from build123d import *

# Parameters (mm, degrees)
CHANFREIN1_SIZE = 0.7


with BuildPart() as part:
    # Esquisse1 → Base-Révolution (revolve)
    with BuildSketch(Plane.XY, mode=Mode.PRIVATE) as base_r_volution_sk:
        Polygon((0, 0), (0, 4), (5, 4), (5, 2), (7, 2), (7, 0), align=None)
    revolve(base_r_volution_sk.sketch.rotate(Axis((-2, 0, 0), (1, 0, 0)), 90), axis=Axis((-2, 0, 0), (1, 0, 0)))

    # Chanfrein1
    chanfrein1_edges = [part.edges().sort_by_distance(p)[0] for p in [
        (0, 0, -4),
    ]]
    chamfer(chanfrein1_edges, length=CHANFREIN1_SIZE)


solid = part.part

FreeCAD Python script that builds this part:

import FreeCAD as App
import Part
import Sketcher

V = App.Vector
Q = App.Units.Quantity


def edges_at(feature, points):
    """Names of the edges that pass closest to the given points."""
    edges = feature.Shape.Edges
    near = lambda p: min(range(len(edges)), key=lambda i: edges[i].distToShape(Part.Vertex(*p))[0])
    return sorted({f"Edge{near(p) + 1}" for p in points})


def add_polygon(sketch, points):
    """Adds a closed chain of lines whose ends are joined by coincident constraints."""
    first, n = sketch.GeometryCount, len(points)
    for a, b in zip(points, points[1:] + points[:1]):
        sketch.addGeometry(Part.LineSegment(App.Vector(*a, 0), App.Vector(*b, 0)), False)
    for i in range(n):
        sketch.addConstraint(Sketcher.Constraint("Coincident", first + i, 2, first + (i + 1) % n, 1))

doc = App.newDocument("Part")
body = doc.addObject("PartDesign::Body", "Body")

sketch1 = body.newObject("Sketcher::SketchObject", "Sketch")
sketch1.AttachmentSupport = (doc.getObject("XY_Plane"), [""])
sketch1.MapMode = "FlatFace"
add_polygon(sketch1, [(0, 4), (0, 0), (7, 0), (7, 2), (5, 2), (5, 4)])
sketch1.addConstraint(Sketcher.Constraint("Vertical", 0))
sketch1.addConstraint(Sketcher.Constraint("Horizontal", 1))
sketch1.addConstraint(Sketcher.Constraint("Vertical", 2))
sketch1.addConstraint(Sketcher.Constraint("Horizontal", 3))
sketch1.addConstraint(Sketcher.Constraint("Vertical", 4))
sketch1.addConstraint(Sketcher.Constraint("Horizontal", 5))
sketch1.addConstraint(Sketcher.Constraint("Coincident", 0, 2, -1, 1))
sketch1.addConstraint(Sketcher.Constraint("Equal", 3, 2))
sketch1.addConstraint(Sketcher.Constraint("Equal", 2, 4))
sketch1.addConstraint(Sketcher.Constraint("DistanceX", 1, 1, 1, 2, Q("7 mm")))
sketch1.addConstraint(Sketcher.Constraint("DistanceX", 3, 2, 3, 1, Q("2 mm")))
revolution = body.newObject("PartDesign::Revolution", "Revolution")
revolution.Profile = sketch1
revolution.ReferenceAxis = (sketch1, ["H_Axis"])
revolution.Angle = 360
doc.recompute()

chamfer = body.newObject("PartDesign::Chamfer", "Chamfer")
chamfer.Base = (revolution, edges_at(revolution, [(0, 0, -4)]))
chamfer.Size = 0.7

doc.recompute()
